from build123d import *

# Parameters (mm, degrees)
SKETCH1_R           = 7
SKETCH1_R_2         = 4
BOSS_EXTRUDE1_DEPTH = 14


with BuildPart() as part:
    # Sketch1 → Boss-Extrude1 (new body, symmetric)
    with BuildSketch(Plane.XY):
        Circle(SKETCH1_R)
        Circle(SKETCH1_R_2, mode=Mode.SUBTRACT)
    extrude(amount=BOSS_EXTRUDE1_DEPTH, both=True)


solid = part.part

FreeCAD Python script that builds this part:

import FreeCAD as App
import Part
import Sketcher

V = App.Vector

doc = App.newDocument("Part")
body = doc.addObject("PartDesign::Body", "Body")

sketch1 = body.newObject("Sketcher::SketchObject", "Sketch")
sketch1.AttachmentSupport = (doc.getObject("XY_Plane"), [""])
sketch1.MapMode = "FlatFace"
sketch1.addGeometry([
    Part.Circle(V(0, 0, 0), V(0, 0, 1), 7),
    Part.Circle(V(0, 0, 0), V(0, 0, 1), 4),
], False)
sketch1.addConstraint([
    Sketcher.Constraint("Coincident", 0, 3, -1, 1),
    Sketcher.Constraint("Coincident", 1, 3, -1, 1),
    Sketcher.Constraint("Diameter", 0, 14.0),
    Sketcher.Constraint("Diameter", 1, 8.0),
])
pad1 = body.newObject("PartDesign::Pad", "Pad")
pad1.Profile = sketch1
pad1.Length = 28
pad1.Midplane = True

doc.recompute()
